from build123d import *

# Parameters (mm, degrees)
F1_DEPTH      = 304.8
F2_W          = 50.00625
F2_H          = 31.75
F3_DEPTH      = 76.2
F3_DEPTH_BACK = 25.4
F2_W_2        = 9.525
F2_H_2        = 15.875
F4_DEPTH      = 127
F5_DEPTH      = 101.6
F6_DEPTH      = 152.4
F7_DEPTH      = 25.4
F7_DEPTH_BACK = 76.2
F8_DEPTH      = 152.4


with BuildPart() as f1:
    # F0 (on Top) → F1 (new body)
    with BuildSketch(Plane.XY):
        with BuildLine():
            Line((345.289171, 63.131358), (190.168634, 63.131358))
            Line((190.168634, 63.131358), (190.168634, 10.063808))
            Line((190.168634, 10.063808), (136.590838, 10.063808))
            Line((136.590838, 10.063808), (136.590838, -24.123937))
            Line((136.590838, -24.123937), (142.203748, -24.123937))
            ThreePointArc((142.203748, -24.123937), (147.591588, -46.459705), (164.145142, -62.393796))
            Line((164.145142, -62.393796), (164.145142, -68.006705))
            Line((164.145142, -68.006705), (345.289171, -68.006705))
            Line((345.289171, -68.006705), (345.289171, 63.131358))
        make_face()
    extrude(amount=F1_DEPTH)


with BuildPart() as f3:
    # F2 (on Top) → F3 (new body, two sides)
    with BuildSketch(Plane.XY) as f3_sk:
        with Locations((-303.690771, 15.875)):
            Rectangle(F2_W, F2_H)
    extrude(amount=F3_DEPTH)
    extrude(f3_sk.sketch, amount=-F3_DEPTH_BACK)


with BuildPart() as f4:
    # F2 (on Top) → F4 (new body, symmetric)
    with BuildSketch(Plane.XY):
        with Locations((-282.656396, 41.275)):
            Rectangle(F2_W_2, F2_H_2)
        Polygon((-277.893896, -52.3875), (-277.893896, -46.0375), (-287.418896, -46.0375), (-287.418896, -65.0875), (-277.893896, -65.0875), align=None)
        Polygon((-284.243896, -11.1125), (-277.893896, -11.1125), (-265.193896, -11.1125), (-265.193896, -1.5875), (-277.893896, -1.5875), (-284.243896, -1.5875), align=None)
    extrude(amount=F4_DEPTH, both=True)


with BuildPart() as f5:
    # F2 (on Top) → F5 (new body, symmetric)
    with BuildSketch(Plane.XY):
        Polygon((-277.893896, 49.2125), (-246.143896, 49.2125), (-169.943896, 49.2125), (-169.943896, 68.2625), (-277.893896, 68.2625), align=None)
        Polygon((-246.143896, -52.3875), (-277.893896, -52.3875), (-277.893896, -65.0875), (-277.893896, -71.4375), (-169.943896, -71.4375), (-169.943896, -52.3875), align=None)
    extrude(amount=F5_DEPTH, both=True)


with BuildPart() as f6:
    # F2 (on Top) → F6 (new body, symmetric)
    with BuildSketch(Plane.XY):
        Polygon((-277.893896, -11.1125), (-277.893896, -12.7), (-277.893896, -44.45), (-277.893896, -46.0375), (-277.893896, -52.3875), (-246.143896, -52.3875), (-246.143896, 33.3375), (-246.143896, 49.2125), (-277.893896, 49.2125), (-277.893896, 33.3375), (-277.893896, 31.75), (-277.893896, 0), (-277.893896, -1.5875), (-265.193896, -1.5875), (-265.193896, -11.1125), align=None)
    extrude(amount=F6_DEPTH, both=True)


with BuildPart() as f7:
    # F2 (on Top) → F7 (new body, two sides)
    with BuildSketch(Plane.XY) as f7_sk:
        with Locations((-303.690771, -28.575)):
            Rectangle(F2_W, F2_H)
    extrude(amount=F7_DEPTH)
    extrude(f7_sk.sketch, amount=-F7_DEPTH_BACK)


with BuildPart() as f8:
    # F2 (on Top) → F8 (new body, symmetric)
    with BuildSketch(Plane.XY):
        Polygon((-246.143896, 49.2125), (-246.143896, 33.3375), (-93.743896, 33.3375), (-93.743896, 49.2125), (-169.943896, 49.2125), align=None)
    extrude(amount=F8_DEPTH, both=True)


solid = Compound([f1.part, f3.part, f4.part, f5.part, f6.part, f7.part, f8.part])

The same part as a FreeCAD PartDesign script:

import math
import FreeCAD as App
import Part
import Sketcher
from FreeCAD import Vector
Q = App.Units.Quantity


def add_polygon(sketch, points):
    """Adds a closed chain of lines whose ends are joined by coincident constraints."""
    first, n = sketch.GeometryCount, len(points)
    for a, b in zip(points, points[1:] + points[:1]):
        sketch.addGeometry(Part.LineSegment(App.Vector(*a, 0), App.Vector(*b, 0)), False)
    for i in range(n):
        sketch.addConstraint(Sketcher.Constraint("Coincident", first + i, 2, first + (i + 1) % n, 1))

doc = App.newDocument("Part")
params = doc.addObject("Spreadsheet::Sheet", "Params")
for row, (alias, value) in enumerate([
    ("pad1_length", "12 in"),
    ("sketch2_height", "1.25 in"),
    ("sketch2_width", "1.96875 in"),
    ("pad2_length", "3 in"),
    ("pad2_length2", "1 in"),
    ("sketch3_width", "0.75 in"),
    ("sketch3_width2", "0.375 in"),
    ("sketch3_height", "0.625 in"),
    ("pad3_length", "10 in"),
    ("sketch4_width", "4.25 in"),
    ("sketch4_height", "0.75 in"),
    ("pad4_length", "8 in"),
    ("sketch5_height", "4 in"),
    ("sketch5_height2", "2 in"),
    ("sketch5_width", "0.5 in"),
    ("sketch5_width2", "1.25 in"),
    ("sketch5_height3", "1.625 in"),
    ("pad5_length", "12 in"),
    ("sketch6_height", "1.25 in"),
    ("sketch6_width", "1.96875 in"),
    ("pad6_length", "1 in"),
    ("pad6_length2", "3 in"),
    ("sketch7_width", "6 in"),
    ("sketch7_height", "0.625 in"),
    ("pad7_length", "12 in"),
], start=1):
    params.set(f"A{row}", alias)
    params.set(f"B{row}", "=" + value)
    params.setAlias(f"B{row}", alias)

body = doc.addObject("PartDesign::Body", "Body")

# Sketch on XY plane
sketch1 = body.newObject("Sketcher::SketchObject", "Sketch")
sketch1.AttachmentSupport = (doc.getObject("XY_Plane"), [""])
sketch1.MapMode = "FlatFace"
sketch1.addGeometry([
    Part.LineSegment(Vector(345, 63, 0), Vector(190, 63, 0)),  # 0
    Part.LineSegment(Vector(190, 63, 0), Vector(190, 10, 0)),  # 1
    Part.LineSegment(Vector(190, 10, 0), Vector(137, 10, 0)),  # 2
    Part.LineSegment(Vector(137, 10, 0), Vector(137, -24, 0)),  # 3
    Part.LineSegment(Vector(137, -24, 0), Vector(142, -24, 0)),  # 4
    Part.ArcOfCircle(Part.Circle(Vector(183, -26, 0), Vector(0, 0, 1), 41), math.radians(177), math.radians(242)),  # 5
    Part.LineSegment(Vector(164, -62, 0), Vector(164, -68, 0)),  # 6
    Part.LineSegment(Vector(164, -68, 0), Vector(345, -68, 0)),  # 7
    Part.LineSegment(Vector(345, -68, 0), Vector(345, 63, 0)),  # 8
], False)
sketch1.addConstraint([
    Sketcher.Constraint("Coincident", 0, 2, 1, 1),
    Sketcher.Constraint("Coincident", 1, 2, 2, 1),
    Sketcher.Constraint("Coincident", 2, 2, 3, 1),
    Sketcher.Constraint("Coincident", 3, 2, 4, 1),
    Sketcher.Constraint("Coincident", 4, 2, 5, 1),
    Sketcher.Constraint("Coincident", 5, 2, 6, 1),
    Sketcher.Constraint("Coincident", 6, 2, 7, 1),
    Sketcher.Constraint("Coincident", 7, 2, 8, 1),
    Sketcher.Constraint("Coincident", 8, 2, 0, 1),
    Sketcher.Constraint("Horizontal", 0),
    Sketcher.Constraint("Vertical", 1),
    Sketcher.Constraint("Horizontal", 2),
    Sketcher.Constraint("Vertical", 3),
    Sketcher.Constraint("Horizontal", 4),
    Sketcher.Constraint("Vertical", 6),
    Sketcher.Constraint("Horizontal", 7),
    Sketcher.Constraint("Vertical", 8),
    Sketcher.Constraint("Equal", 4, 6),
    Sketcher.Constraint("Radius", 5, Q("41.01687 mm")),
    Sketcher.Constraint("DistanceX", 4, 1, 4, 2, Q("5.61291 mm")),
    Sketcher.Constraint("DistanceX", 7, 1, 7, 2, Q("181.144029 mm")),
    Sketcher.Constraint("DistanceY", 1, 2, 1, 1, Q("53.06755 mm")),
    Sketcher.Constraint("DistanceX", 0, 2, 0, 1, Q("155.120537 mm")),
    Sketcher.Constraint("DistanceX", 2, 2, 2, 1, Q("53.577796 mm")),
    Sketcher.Constraint("DistanceY", 3, 2, 3, 1, Q("34.187745 mm")),
    Sketcher.Constraint("DistanceY", 8, 1, 8, 2, Q("131.138063 mm")),
    Sketcher.Constraint("DistanceY", 5, 3, -1, 1, Q("26.05856 mm")),
    Sketcher.Constraint("DistanceX", -1, 1, 2, 2, Q("136.590838 mm")),
])
pad1 = body.newObject("PartDesign::Pad", "Pad")
pad1.Profile = sketch1
pad1.setExpression("Length", "Params.pad1_length")
body2 = doc.addObject("PartDesign::Body", "Body001")

# Sketch on XY plane
sketch2 = body2.newObject("Sketcher::SketchObject", "Sketch001")
sketch2.AttachmentSupport = (doc.getObject("XY_Plane001"), [""])
sketch2.MapMode = "FlatFace"
add_polygon(sketch2, [(-329, 32), (-329, 0), (-279, 0), (-279, 32)])  # lines 0-3
sketch2.addConstraint([
    Sketcher.Constraint("Vertical", 0),
    Sketcher.Constraint("Horizontal", 1),
    Sketcher.Constraint("Vertical", 2),
    Sketcher.Constraint("Horizontal", 3),
    Sketcher.Constraint("PointOnObject", 0, 2, -1),
    Sketcher.Constraint("DistanceY", 0, 2, 0, 1, Q("1.25 in")),
    Sketcher.Constraint("DistanceX", 1, 1, 1, 2, Q("1.96875 in")),
    Sketcher.Constraint("DistanceX", 0, 2, -1, 1, Q("328.693896 mm")),
])
sketch2.setExpression("Constraints[9]", "Params.sketch2_height")
sketch2.setExpression("Constraints[10]", "Params.sketch2_width")
pad2 = body2.newObject("PartDesign::Pad", "Pad001")
pad2.Profile = sketch2
pad2.Type = "TwoLengths"
pad2.setExpression("Length", "Params.pad2_length")
pad2.setExpression("Length2", "Params.pad2_length2")
body3 = doc.addObject("PartDesign::Body", "Body002")
body3.AllowCompound = True

# Sketch on XY plane
sketch3 = body3.newObject("Sketcher::SketchObject", "Sketch002")
sketch3.AttachmentSupport = (doc.getObject("XY_Plane002"), [""])
sketch3.MapMode = "FlatFace"
add_polygon(sketch3, [(-287, 49), (-287, 33), (-278, 33), (-278, 49)])  # lines 0-3
add_polygon(sketch3, [(-278, -46), (-287, -46), (-287, -65), (-278, -65)])  # lines 4-7
add_polygon(sketch3, [(-284, -11), (-265, -11), (-265, -2), (-284, -2)])  # lines 8-11
sketch3.addConstraint([
    Sketcher.Constraint("Vertical", 0),
    Sketcher.Constraint("Horizontal", 1),
    Sketcher.Constraint("Vertical", 2),
    Sketcher.Constraint("Horizontal", 3),
    Sketcher.Constraint("Horizontal", 4),
    Sketcher.Constraint("Vertical", 5),
    Sketcher.Constraint("Horizontal", 6),
    Sketcher.Constraint("Vertical", 7),
    Sketcher.Constraint("Horizontal", 8),
    Sketcher.Constraint("Vertical", 9),
    Sketcher.Constraint("Horizontal", 10),
    Sketcher.Constraint("Vertical", 11),
    Sketcher.Constraint("Vertical", 3, 2, 4, 2),
    Sketcher.Constraint("Vertical", 2, 2, 6, 2),
    Sketcher.Constraint("Equal", 10, 5),
    Sketcher.Constraint("Equal", 6, 9),
    Sketcher.Constraint("DistanceX", 8, 1, 8, 2, Q("0.75 in")),
    Sketcher.Constraint("DistanceY", 5, 2, 3, 2, Q("4.5 in")),
    Sketcher.Constraint("DistanceX", 7, 2, 8, 2, Q("0.5 in")),
    Sketcher.Constraint("DistanceX", 1, 1, 1, 2, Q("0.375 in")),
    Sketcher.Constraint("DistanceY", 0, 2, 0, 1, Q("0.625 in")),
    Sketcher.Constraint("DistanceY", 8, 2, 1, 2, Q("1.75 in")),
    Sketcher.Constraint("DistanceY", -1, 1, 0, 2, Q("1.3125 in")),
    Sketcher.Constraint("DistanceX", 0, 2, -1, 1, Q("287.418896 mm")),
])
sketch3.setExpression("Constraints[28]", "Params.sketch3_width")
sketch3.setExpression("Constraints[31]", "Params.sketch3_width2")
sketch3.setExpression("Constraints[32]", "Params.sketch3_height")
pad3 = body3.newObject("PartDesign::Pad", "Pad002")
pad3.Profile = sketch3
pad3.setExpression("Length", "Params.pad3_length")
pad3.Midplane = True
body4 = doc.addObject("PartDesign::Body", "Body003")
body4.AllowCompound = True

# Sketch on XY plane
sketch4 = body4.newObject("Sketcher::SketchObject", "Sketch003")
sketch4.AttachmentSupport = (doc.getObject("XY_Plane003"), [""])
sketch4.MapMode = "FlatFace"
add_polygon(sketch4, [(-278, 49), (-170, 49), (-170, 68), (-278, 68)])  # lines 0-3
add_polygon(sketch4, [(-278, -52), (-278, -71), (-170, -71), (-170, -52)])  # lines 4-7
sketch4.addConstraint([
    Sketcher.Constraint("Horizontal", 0),
    Sketcher.Constraint("Vertical", 1),
    Sketcher.Constraint("Horizontal", 2),
    Sketcher.Constraint("Vertical", 3),
    Sketcher.Constraint("Vertical", 4),
    Sketcher.Constraint("Horizontal", 5),
    Sketcher.Constraint("Vertical", 6),
    Sketcher.Constraint("Horizontal", 7),
    Sketcher.Constraint("Vertical", 3, 2, 4, 2),
    Sketcher.Constraint("Vertical", 1, 2, 5, 2),
    Sketcher.Constraint("Equal", 3, 4),
    Sketcher.Constraint("DistanceY", 6, 2, 0, 2, Q("4 in")),
    Sketcher.Constraint("DistanceX", 0, 1, 0, 2, Q("4.25 in")),
    Sketcher.Constraint("DistanceY", 1, 1, 1, 2, Q("0.75 in")),
    Sketcher.Constraint("DistanceY", -1, 1, 0, 2, Q("1.9375 in")),
    Sketcher.Constraint("DistanceX", 0, 2, -1, 1, Q("169.943896 mm")),
])
sketch4.setExpression("Constraints[20]", "Params.sketch4_width")
sketch4.setExpression("Constraints[21]", "Params.sketch4_height")
pad4 = body4.newObject("PartDesign::Pad", "Pad003")
pad4.Profile = sketch4
pad4.setExpression("Length", "Params.pad4_length")
pad4.Midplane = True
body5 = doc.addObject("PartDesign::Body", "Body004")

# Sketch on XY plane
sketch5 = body5.newObject("Sketcher::SketchObject", "Sketch004")
sketch5.AttachmentSupport = (doc.getObject("XY_Plane004"), [""])
sketch5.MapMode = "FlatFace"
add_polygon(sketch5, [(-278, -11), (-278, -52), (-246, -52), (-246, 49), (-278, 49), (-278, -2), (-265, -2), (-265, -11)])  # lines 0-7
sketch5.addConstraint([
    Sketcher.Constraint("Vertical", 0),
    Sketcher.Constraint("Horizontal", 1),
    Sketcher.Constraint("Vertical", 2),
    Sketcher.Constraint("Horizontal", 3),
    Sketcher.Constraint("Vertical", 4),
    Sketcher.Constraint("Horizontal", 5),
    Sketcher.Constraint("Vertical", 6),
    Sketcher.Constraint("Horizontal", 7),
    Sketcher.Constraint("Vertical", 0, 2, 3, 2),
    Sketcher.Constraint("DistanceY", 2, 1, 2, 2, Q("4 in")),
    Sketcher.Constraint("DistanceY", 4, 2, 4, 1, Q("2 in")),
    Sketcher.Constraint("DistanceX", 5, 1, 5, 2, Q("0.5 in")),
    Sketcher.Constraint("DistanceX", 1, 1, 1, 2, Q("1.25 in")),
    Sketcher.Constraint("DistanceY", 0, 2, 0, 1, Q("1.625 in")),
    Sketcher.Constraint("DistanceY", 0, 2, -1, 1, Q("2.0625 in")),
    Sketcher.Constraint("DistanceX", 0, 2, -1, 1, Q("277.893896 mm")),
])
sketch5.setExpression("Constraints[17]", "Params.sketch5_height")
sketch5.setExpression("Constraints[18]", "Params.sketch5_height2")
sketch5.setExpression("Constraints[19]", "Params.sketch5_width")
sketch5.setExpression("Constraints[20]", "Params.sketch5_width2")
sketch5.setExpression("Constraints[21]", "Params.sketch5_height3")
pad5 = body5.newObject("PartDesign::Pad", "Pad004")
pad5.Profile = sketch5
pad5.setExpression("Length", "Params.pad5_length")
pad5.Midplane = True
body6 = doc.addObject("PartDesign::Body", "Body005")

# Sketch on XY plane
sketch6 = body6.newObject("Sketcher::SketchObject", "Sketch005")
sketch6.AttachmentSupport = (doc.getObject("XY_Plane005"), [""])
sketch6.MapMode = "FlatFace"
add_polygon(sketch6, [(-329, -13), (-329, -44), (-279, -44), (-279, -13)])  # lines 0-3
sketch6.addConstraint([
    Sketcher.Constraint("Vertical", 0),
    Sketcher.Constraint("Horizontal", 1),
    Sketcher.Constraint("Vertical", 2),
    Sketcher.Constraint("Horizontal", 3),
    Sketcher.Constraint("DistanceY", 0, 2, 0, 1, Q("1.25 in")),
    Sketcher.Constraint("DistanceY", 2, 2, -1, 1, Q("0.5 in")),
    Sketcher.Constraint("DistanceX", 1, 1, 1, 2, Q("1.96875 in")),
    Sketcher.Constraint("DistanceX", 0, 2, -1, 1, Q("328.693896 mm")),
])
sketch6.setExpression("Constraints[8]", "Params.sketch6_height")
sketch6.setExpression("Constraints[10]", "Params.sketch6_width")
pad6 = body6.newObject("PartDesign::Pad", "Pad005")
pad6.Profile = sketch6
pad6.Type = "TwoLengths"
pad6.setExpression("Length", "Params.pad6_length")
pad6.setExpression("Length2", "Params.pad6_length2")
body7 = doc.addObject("PartDesign::Body", "Body006")

# Sketch on XY plane
sketch7 = body7.newObject("Sketcher::SketchObject", "Sketch006")
sketch7.AttachmentSupport = (doc.getObject("XY_Plane006"), [""])
sketch7.MapMode = "FlatFace"
add_polygon(sketch7, [(-246, 49), (-246, 33), (-94, 33), (-94, 49)])  # lines 0-3
sketch7.addConstraint([
    Sketcher.Constraint("Vertical", 0),
    Sketcher.Constraint("Horizontal", 1),
    Sketcher.Constraint("Vertical", 2),
    Sketcher.Constraint("Horizontal", 3),
    Sketcher.Constraint("DistanceX", 1, 1, 1, 2, Q("6 in")),
    Sketcher.Constraint("DistanceY", 0, 2, 0, 1, Q("0.625 in")),
    Sketcher.Constraint("DistanceY", -1, 1, 0, 2, Q("1.3125 in")),
    Sketcher.Constraint("DistanceX", 0, 2, -1, 1, Q("246.143896 mm")),
])
sketch7.setExpression("Constraints[8]", "Params.sketch7_width")
sketch7.setExpression("Constraints[9]", "Params.sketch7_height")
pad7 = body7.newObject("PartDesign::Pad", "Pad006")
pad7.Profile = sketch7
pad7.setExpression("Length", "Params.pad7_length")
pad7.Midplane = True

doc.recompute()
